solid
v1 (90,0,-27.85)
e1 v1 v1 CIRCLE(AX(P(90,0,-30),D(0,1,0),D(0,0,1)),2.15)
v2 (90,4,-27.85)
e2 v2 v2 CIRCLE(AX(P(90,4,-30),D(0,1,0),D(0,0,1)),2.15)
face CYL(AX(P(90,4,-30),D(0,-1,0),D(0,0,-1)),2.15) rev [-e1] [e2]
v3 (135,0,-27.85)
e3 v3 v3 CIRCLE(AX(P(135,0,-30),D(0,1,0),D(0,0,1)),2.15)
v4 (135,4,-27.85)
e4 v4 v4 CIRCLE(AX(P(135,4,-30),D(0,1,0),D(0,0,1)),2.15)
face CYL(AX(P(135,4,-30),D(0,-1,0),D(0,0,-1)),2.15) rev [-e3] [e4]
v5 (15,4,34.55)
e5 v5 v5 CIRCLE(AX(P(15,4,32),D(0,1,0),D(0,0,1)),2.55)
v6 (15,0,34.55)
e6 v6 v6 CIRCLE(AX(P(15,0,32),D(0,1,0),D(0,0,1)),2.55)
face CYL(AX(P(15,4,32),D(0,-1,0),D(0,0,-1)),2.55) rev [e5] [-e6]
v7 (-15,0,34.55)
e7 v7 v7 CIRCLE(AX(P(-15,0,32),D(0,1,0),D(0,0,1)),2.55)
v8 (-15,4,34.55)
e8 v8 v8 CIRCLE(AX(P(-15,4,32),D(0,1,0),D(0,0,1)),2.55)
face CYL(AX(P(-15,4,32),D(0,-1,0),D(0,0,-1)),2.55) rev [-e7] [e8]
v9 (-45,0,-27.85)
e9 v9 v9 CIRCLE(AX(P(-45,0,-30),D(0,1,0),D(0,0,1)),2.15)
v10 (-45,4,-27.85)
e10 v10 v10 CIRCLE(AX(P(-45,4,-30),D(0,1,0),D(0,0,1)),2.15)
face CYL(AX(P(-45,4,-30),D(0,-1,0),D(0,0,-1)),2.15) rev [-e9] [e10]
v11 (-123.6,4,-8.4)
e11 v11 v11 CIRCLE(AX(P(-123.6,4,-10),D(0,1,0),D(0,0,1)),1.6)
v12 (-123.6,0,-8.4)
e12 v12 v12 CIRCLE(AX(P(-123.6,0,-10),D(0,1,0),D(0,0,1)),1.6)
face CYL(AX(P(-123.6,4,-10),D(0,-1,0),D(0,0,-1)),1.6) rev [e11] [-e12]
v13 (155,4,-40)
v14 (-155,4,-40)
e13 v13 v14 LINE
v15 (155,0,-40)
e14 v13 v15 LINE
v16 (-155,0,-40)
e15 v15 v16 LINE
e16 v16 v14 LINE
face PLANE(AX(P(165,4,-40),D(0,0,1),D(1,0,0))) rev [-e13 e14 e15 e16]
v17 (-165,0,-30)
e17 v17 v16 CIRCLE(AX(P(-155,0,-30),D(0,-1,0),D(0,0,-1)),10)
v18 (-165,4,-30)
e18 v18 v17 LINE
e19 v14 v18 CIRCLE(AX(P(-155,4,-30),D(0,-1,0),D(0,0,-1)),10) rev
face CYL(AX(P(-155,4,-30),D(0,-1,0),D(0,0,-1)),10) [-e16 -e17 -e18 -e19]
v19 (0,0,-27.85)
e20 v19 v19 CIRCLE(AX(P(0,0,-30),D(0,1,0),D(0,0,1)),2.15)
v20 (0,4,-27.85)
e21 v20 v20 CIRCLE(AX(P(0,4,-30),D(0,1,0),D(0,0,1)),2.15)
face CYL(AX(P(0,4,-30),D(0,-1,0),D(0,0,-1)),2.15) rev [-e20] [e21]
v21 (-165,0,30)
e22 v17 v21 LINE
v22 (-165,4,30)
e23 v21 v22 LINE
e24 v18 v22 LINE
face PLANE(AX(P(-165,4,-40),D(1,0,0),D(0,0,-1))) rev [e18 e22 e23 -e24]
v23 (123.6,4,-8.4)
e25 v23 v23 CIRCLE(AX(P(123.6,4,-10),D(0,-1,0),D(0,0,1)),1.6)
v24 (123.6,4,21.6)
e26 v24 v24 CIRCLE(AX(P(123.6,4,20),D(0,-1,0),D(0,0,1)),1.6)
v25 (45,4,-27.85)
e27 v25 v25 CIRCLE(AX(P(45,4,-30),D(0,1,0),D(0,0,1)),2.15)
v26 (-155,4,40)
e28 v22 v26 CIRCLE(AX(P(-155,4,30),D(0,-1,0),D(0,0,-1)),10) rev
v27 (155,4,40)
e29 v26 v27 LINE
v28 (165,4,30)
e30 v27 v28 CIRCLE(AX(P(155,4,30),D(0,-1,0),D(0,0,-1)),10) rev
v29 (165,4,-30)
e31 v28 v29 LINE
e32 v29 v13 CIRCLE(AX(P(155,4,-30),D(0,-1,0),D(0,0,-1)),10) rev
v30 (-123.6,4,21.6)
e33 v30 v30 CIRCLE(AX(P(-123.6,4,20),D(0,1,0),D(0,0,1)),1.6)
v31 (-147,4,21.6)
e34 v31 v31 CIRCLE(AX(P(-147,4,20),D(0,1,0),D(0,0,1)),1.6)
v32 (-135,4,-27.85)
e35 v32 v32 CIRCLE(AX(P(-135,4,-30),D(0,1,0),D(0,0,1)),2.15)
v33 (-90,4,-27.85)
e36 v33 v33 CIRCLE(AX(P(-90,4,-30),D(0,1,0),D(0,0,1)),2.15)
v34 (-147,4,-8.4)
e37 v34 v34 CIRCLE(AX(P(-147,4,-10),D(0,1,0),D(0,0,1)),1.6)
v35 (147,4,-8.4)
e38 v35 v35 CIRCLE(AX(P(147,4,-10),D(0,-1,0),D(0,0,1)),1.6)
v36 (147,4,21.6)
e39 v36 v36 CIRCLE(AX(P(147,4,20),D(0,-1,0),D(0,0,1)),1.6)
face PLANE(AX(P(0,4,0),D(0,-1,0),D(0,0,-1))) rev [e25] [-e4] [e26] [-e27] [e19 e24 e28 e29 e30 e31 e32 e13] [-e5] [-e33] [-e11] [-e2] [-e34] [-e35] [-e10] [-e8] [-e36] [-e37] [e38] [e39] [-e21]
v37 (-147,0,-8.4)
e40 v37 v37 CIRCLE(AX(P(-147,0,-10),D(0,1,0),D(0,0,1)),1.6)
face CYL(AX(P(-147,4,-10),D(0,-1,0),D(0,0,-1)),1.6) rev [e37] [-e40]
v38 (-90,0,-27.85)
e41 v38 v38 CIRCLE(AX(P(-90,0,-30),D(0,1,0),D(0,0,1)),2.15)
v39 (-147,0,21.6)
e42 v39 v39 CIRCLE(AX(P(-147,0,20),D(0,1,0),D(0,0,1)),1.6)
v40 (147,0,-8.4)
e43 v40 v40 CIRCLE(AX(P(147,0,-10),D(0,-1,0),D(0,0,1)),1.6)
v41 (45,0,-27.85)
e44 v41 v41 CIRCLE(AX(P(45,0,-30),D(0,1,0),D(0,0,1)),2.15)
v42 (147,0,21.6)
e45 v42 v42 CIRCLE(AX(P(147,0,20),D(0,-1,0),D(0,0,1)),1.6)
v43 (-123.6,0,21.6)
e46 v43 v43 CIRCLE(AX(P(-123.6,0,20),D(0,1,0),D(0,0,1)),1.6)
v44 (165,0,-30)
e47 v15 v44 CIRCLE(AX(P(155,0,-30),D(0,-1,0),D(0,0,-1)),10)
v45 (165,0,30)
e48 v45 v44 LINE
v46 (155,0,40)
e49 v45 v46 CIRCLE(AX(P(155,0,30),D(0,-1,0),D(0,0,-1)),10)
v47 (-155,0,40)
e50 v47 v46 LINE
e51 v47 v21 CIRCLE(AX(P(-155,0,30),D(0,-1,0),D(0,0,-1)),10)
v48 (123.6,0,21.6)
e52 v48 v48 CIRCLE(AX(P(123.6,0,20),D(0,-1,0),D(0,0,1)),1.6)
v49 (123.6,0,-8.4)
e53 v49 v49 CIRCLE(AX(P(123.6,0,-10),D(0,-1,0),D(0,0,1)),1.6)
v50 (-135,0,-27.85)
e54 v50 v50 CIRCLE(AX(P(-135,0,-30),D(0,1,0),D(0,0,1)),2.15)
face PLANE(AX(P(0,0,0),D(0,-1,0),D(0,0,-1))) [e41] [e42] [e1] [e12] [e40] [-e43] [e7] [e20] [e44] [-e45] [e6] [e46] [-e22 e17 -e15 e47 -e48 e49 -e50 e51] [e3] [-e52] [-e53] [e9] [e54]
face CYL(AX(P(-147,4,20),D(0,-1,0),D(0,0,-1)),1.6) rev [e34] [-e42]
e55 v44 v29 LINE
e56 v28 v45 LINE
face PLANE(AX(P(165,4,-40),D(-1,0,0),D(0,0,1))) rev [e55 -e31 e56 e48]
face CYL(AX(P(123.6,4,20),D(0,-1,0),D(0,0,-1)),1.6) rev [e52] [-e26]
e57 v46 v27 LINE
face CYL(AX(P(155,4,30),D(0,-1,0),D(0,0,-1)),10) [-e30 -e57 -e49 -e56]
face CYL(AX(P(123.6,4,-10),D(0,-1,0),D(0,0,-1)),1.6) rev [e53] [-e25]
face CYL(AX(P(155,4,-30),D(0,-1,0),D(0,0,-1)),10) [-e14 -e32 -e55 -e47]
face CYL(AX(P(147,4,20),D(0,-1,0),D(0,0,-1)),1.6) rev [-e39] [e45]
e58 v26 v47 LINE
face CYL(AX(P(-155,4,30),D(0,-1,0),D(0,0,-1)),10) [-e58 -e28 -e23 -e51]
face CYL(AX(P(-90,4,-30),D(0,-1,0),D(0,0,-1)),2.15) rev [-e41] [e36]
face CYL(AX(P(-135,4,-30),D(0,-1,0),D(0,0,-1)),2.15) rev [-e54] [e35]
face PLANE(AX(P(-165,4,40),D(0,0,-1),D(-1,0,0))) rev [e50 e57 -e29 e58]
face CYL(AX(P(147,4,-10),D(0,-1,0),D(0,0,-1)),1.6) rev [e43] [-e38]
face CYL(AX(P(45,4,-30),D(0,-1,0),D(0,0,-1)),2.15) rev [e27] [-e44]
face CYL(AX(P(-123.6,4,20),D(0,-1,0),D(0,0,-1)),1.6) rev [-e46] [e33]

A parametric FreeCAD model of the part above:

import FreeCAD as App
import Part
import Sketcher

V = App.Vector


def edges_at(feature, points):
    """Names of the edges that pass closest to the given points."""
    edges = feature.Shape.Edges
    near = lambda p: min(range(len(edges)), key=lambda i: edges[i].distToShape(Part.Vertex(*p))[0])
    return sorted({f"Edge{near(p) + 1}" for p in points})

doc = App.newDocument("Part")
body = doc.addObject("PartDesign::Body", "Body")

# Sketch on XZ plane
sketch1 = body.newObject("Sketcher::SketchObject", "Sketch")
sketch1.AttachmentSupport = (doc.getObject("XZ_Plane"), [""])
sketch1.MapMode = "FlatFace"
sketch1.addGeometry([
    Part.LineSegment(V(-165, -40, 0), V(-165, 40, 0)),  # 0
    Part.LineSegment(V(-165, 40, 0), V(165, 40, 0)),  # 1
    Part.LineSegment(V(165, 40, 0), V(165, -40, 0)),  # 2
    Part.LineSegment(V(165, -40, 0), V(-165, -40, 0)),  # 3
    Part.Circle(V(-15, 32, 0), V(0, 0, 1), 2.5),  # 4
    Part.Circle(V(15, 32, 0), V(0, 0, 1), 2.5),  # 5
], False)
sketch1.addConstraint([
    Sketcher.Constraint("Coincident", 0, 2, 1, 1),
    Sketcher.Constraint("Coincident", 1, 2, 2, 1),
    Sketcher.Constraint("Coincident", 2, 2, 3, 1),
    Sketcher.Constraint("Coincident", 3, 2, 0, 1),
    Sketcher.Constraint("Vertical", 0),
    Sketcher.Constraint("Horizontal", 1),
    Sketcher.Constraint("Vertical", 2),
    Sketcher.Constraint("Horizontal", 3),
    Sketcher.Constraint("Equal", 4, 5),
    Sketcher.Constraint("Symmetric", 0, 2, 2, 2, -1, 1),
    Sketcher.Constraint("Symmetric", 4, 3, 5, 3, -2),
    Sketcher.Constraint("Diameter", 4, 5.1),
    Sketcher.Constraint("DistanceX", 1, 1, 1, 2, 330.0),
    Sketcher.Constraint("DistanceY", 0, 1, 0, 2, 80.0),
    Sketcher.Constraint("DistanceX", 4, 3, -1, 1, 15.0),
    Sketcher.Constraint("DistanceY", -1, 1, 4, 3, 32.0),
])
pad1 = body.newObject("PartDesign::Pad", "Pad")
pad1.Profile = sketch1
pad1.Length = 4
pad1.Reversed = True

# Sketch on XZ plane
sketch2 = body.newObject("Sketcher::SketchObject", "Sketch001")
sketch2.AttachmentSupport = (doc.getObject("XZ_Plane"), [""])
sketch2.MapMode = "FlatFace"
sketch2.addGeometry([
    Part.Circle(V(-147, -10, 0), V(0, 0, 1), 1.6),
    Part.Circle(V(-147, 20, 0), V(0, 0, 1), 1.6),
    Part.Circle(V(-123.6, 20, 0), V(0, 0, 1), 1.6),
    Part.Circle(V(-123.6, -10, 0), V(0, 0, 1), 1.6),
], False)
sketch2.addConstraint([
    Sketcher.Constraint("Equal", 0, 1),
    Sketcher.Constraint("Equal", 1, 2),
    Sketcher.Constraint("Equal", 2, 3),
    Sketcher.Constraint("Horizontal", 1, 3, 2, 3),
    Sketcher.Constraint("Horizontal", 0, 3, 3, 3),
    Sketcher.Constraint("Vertical", 0, 3, 1, 3),
    Sketcher.Constraint("Vertical", 2, 3, 3, 3),
    Sketcher.Constraint("Diameter", 0, 3.2),
    Sketcher.Constraint("DistanceX", 0, 3, -1, 1, 147.0),
    Sketcher.Constraint("DistanceY", 0, 3, -1, 1, 10.0),
    Sketcher.Constraint("DistanceY", -1, 1, 1, 3, 20.0),
    Sketcher.Constraint("DistanceX", 2, 3, -1, 1, 123.6),
])
pocket1 = body.newObject("PartDesign::Pocket", "Pocket")
pocket1.Profile = sketch2
pocket1.Type = "ThroughAll"
doc.recompute()

mirrored = body.newObject("PartDesign::Mirrored", "Mirrored")
mirrored.Originals = [pocket1]
mirrored.MirrorPlane = (doc.getObject("YZ_Plane"), [""])
body.Tip = mirrored

# Sketch on XZ plane
sketch3 = body.newObject("Sketcher::SketchObject", "Sketch002")
sketch3.AttachmentSupport = (doc.getObject("XZ_Plane"), [""])
sketch3.MapMode = "FlatFace"
sketch3.addGeometry(Part.Circle(V(0, -30, 0), V(0, 0, 1), 2.1), False)
sketch3.addConstraint([
    Sketcher.Constraint("PointOnObject", 0, 3, -2),
    Sketcher.Constraint("Diameter", 0, 4.3),
    Sketcher.Constraint("DistanceY", 0, 3, -1, 1, 30.0),
])
pocket2 = body.newObject("PartDesign::Pocket", "Pocket001")
pocket2.Profile = sketch3
pocket2.Type = "ThroughAll"
doc.recompute()

linearpattern = body.newObject("PartDesign::LinearPattern", "LinearPattern")
linearpattern.Originals = [pocket2]
linearpattern.Direction = (doc.getObject("X_Axis"), [""])
linearpattern.Mode = "offset"
linearpattern.Offset = 45
linearpattern.Occurrences = 4
body.Tip = linearpattern
doc.recompute()

linearpattern2 = body.newObject("PartDesign::LinearPattern", "LinearPattern001")
linearpattern2.Originals = [pocket2]
linearpattern2.Direction = (doc.getObject("X_Axis"), [""])
linearpattern2.Mode = "offset"
linearpattern2.Offset = 45
linearpattern2.Occurrences = 4
linearpattern2.Reversed = True
body.Tip = linearpattern2
doc.recompute()

fillet = body.newObject("PartDesign::Fillet", "Fillet")
fillet.Base = (linearpattern2, edges_at(linearpattern2, [
    (-165, 2, 40),
    (-165, 2, -40),
    (165, 2, -40),
    (165, 2, 40),
]))
fillet.Radius = 10

doc.recompute()
